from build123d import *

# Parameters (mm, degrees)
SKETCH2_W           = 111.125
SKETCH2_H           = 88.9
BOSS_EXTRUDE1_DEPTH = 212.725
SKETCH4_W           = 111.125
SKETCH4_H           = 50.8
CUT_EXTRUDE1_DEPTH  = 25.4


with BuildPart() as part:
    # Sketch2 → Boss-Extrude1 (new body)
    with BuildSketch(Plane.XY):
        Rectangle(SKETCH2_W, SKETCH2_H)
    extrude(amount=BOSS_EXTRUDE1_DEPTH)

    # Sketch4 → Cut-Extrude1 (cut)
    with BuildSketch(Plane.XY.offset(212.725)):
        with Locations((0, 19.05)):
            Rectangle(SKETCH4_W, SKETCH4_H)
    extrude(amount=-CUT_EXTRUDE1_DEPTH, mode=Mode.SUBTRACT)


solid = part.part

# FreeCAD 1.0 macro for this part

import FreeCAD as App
import Part
import Sketcher

V = App.Vector
Q = App.Units.Quantity

doc = App.newDocument("Part")
body = doc.addObject("PartDesign::Body", "Body")

# Sketch on XY plane
sketch1 = body.newObject("Sketcher::SketchObject", "Sketch")
sketch1.AttachmentSupport = (doc.getObject("XY_Plane"), [""])
sketch1.MapMode = "FlatFace"
sketch1.addGeometry([
    Part.LineSegment(V(-56, 44, 0), V(-56, -44, 0)),
    Part.LineSegment(V(-56, -44, 0), V(56, -44, 0)),
    Part.LineSegment(V(56, -44, 0), V(56, 44, 0)),
    Part.LineSegment(V(56, 44, 0), V(-56, 44, 0)),
], False)
sketch1.addConstraint([
    Sketcher.Constraint("Coincident", 0, 2, 1, 1),
    Sketcher.Constraint("Coincident", 1, 2, 2, 1),
    Sketcher.Constraint("Coincident", 2, 2, 3, 1),
    Sketcher.Constraint("Coincident", 3, 2, 0, 1),
    Sketcher.Constraint("Vertical", 0),
    Sketcher.Constraint("Horizontal", 1),
    Sketcher.Constraint("Vertical", 2),
    Sketcher.Constraint("Horizontal", 3),
    Sketcher.Constraint("Symmetric", 0, 2, 2, 2, -1, 1),
    Sketcher.Constraint("DistanceY", 0, 2, 0, 1, Q("3.5 in")),
    Sketcher.Constraint("DistanceX", 1, 1, 1, 2, Q("4.375 in")),
])
pad1 = body.newObject("PartDesign::Pad", "Pad")
pad1.Profile = sketch1
pad1.Length = Q("8.375 in")

# Sketch on XY plane
sketch2 = body.newObject("Sketcher::SketchObject", "Sketch001")
sketch2.AttachmentSupport = (doc.getObject("XY_Plane"), [""])
sketch2.MapMode = "FlatFace"
sketch2.AttachmentOffset = App.Placement(V(0, 0, 8.375 * 25.4), App.Rotation())
sketch2.addGeometry([
    Part.LineSegment(V(-56, 44, 0), V(-56, -6, 0)),
    Part.LineSegment(V(-56, -6, 0), V(56, -6, 0)),
    Part.LineSegment(V(56, -6, 0), V(56, 44, 0)),
    Part.LineSegment(V(56, 44, 0), V(-56, 44, 0)),
], False)
sketch2.addConstraint([
    Sketcher.Constraint("Coincident", 0, 2, 1, 1),
    Sketcher.Constraint("Coincident", 1, 2, 2, 1),
    Sketcher.Constraint("Coincident", 2, 2, 3, 1),
    Sketcher.Constraint("Coincident", 3, 2, 0, 1),
    Sketcher.Constraint("Vertical", 0),
    Sketcher.Constraint("Horizontal", 1),
    Sketcher.Constraint("Vertical", 2),
    Sketcher.Constraint("Horizontal", 3),
    Sketcher.Constraint("DistanceY", 0, 2, 0, 1, Q("2 in")),
    Sketcher.Constraint("DistanceX", 1, 1, 1, 2, Q("4.375 in")),
    Sketcher.Constraint("DistanceY", 0, 2, -1, 1, Q("0.25 in")),
    Sketcher.Constraint("DistanceX", 0, 2, -1, 1, Q("2.1875 in")),
])
pocket1 = body.newObject("PartDesign::Pocket", "Pocket")
pocket1.Profile = sketch2
pocket1.Length = Q("1 in")

doc.recompute()
